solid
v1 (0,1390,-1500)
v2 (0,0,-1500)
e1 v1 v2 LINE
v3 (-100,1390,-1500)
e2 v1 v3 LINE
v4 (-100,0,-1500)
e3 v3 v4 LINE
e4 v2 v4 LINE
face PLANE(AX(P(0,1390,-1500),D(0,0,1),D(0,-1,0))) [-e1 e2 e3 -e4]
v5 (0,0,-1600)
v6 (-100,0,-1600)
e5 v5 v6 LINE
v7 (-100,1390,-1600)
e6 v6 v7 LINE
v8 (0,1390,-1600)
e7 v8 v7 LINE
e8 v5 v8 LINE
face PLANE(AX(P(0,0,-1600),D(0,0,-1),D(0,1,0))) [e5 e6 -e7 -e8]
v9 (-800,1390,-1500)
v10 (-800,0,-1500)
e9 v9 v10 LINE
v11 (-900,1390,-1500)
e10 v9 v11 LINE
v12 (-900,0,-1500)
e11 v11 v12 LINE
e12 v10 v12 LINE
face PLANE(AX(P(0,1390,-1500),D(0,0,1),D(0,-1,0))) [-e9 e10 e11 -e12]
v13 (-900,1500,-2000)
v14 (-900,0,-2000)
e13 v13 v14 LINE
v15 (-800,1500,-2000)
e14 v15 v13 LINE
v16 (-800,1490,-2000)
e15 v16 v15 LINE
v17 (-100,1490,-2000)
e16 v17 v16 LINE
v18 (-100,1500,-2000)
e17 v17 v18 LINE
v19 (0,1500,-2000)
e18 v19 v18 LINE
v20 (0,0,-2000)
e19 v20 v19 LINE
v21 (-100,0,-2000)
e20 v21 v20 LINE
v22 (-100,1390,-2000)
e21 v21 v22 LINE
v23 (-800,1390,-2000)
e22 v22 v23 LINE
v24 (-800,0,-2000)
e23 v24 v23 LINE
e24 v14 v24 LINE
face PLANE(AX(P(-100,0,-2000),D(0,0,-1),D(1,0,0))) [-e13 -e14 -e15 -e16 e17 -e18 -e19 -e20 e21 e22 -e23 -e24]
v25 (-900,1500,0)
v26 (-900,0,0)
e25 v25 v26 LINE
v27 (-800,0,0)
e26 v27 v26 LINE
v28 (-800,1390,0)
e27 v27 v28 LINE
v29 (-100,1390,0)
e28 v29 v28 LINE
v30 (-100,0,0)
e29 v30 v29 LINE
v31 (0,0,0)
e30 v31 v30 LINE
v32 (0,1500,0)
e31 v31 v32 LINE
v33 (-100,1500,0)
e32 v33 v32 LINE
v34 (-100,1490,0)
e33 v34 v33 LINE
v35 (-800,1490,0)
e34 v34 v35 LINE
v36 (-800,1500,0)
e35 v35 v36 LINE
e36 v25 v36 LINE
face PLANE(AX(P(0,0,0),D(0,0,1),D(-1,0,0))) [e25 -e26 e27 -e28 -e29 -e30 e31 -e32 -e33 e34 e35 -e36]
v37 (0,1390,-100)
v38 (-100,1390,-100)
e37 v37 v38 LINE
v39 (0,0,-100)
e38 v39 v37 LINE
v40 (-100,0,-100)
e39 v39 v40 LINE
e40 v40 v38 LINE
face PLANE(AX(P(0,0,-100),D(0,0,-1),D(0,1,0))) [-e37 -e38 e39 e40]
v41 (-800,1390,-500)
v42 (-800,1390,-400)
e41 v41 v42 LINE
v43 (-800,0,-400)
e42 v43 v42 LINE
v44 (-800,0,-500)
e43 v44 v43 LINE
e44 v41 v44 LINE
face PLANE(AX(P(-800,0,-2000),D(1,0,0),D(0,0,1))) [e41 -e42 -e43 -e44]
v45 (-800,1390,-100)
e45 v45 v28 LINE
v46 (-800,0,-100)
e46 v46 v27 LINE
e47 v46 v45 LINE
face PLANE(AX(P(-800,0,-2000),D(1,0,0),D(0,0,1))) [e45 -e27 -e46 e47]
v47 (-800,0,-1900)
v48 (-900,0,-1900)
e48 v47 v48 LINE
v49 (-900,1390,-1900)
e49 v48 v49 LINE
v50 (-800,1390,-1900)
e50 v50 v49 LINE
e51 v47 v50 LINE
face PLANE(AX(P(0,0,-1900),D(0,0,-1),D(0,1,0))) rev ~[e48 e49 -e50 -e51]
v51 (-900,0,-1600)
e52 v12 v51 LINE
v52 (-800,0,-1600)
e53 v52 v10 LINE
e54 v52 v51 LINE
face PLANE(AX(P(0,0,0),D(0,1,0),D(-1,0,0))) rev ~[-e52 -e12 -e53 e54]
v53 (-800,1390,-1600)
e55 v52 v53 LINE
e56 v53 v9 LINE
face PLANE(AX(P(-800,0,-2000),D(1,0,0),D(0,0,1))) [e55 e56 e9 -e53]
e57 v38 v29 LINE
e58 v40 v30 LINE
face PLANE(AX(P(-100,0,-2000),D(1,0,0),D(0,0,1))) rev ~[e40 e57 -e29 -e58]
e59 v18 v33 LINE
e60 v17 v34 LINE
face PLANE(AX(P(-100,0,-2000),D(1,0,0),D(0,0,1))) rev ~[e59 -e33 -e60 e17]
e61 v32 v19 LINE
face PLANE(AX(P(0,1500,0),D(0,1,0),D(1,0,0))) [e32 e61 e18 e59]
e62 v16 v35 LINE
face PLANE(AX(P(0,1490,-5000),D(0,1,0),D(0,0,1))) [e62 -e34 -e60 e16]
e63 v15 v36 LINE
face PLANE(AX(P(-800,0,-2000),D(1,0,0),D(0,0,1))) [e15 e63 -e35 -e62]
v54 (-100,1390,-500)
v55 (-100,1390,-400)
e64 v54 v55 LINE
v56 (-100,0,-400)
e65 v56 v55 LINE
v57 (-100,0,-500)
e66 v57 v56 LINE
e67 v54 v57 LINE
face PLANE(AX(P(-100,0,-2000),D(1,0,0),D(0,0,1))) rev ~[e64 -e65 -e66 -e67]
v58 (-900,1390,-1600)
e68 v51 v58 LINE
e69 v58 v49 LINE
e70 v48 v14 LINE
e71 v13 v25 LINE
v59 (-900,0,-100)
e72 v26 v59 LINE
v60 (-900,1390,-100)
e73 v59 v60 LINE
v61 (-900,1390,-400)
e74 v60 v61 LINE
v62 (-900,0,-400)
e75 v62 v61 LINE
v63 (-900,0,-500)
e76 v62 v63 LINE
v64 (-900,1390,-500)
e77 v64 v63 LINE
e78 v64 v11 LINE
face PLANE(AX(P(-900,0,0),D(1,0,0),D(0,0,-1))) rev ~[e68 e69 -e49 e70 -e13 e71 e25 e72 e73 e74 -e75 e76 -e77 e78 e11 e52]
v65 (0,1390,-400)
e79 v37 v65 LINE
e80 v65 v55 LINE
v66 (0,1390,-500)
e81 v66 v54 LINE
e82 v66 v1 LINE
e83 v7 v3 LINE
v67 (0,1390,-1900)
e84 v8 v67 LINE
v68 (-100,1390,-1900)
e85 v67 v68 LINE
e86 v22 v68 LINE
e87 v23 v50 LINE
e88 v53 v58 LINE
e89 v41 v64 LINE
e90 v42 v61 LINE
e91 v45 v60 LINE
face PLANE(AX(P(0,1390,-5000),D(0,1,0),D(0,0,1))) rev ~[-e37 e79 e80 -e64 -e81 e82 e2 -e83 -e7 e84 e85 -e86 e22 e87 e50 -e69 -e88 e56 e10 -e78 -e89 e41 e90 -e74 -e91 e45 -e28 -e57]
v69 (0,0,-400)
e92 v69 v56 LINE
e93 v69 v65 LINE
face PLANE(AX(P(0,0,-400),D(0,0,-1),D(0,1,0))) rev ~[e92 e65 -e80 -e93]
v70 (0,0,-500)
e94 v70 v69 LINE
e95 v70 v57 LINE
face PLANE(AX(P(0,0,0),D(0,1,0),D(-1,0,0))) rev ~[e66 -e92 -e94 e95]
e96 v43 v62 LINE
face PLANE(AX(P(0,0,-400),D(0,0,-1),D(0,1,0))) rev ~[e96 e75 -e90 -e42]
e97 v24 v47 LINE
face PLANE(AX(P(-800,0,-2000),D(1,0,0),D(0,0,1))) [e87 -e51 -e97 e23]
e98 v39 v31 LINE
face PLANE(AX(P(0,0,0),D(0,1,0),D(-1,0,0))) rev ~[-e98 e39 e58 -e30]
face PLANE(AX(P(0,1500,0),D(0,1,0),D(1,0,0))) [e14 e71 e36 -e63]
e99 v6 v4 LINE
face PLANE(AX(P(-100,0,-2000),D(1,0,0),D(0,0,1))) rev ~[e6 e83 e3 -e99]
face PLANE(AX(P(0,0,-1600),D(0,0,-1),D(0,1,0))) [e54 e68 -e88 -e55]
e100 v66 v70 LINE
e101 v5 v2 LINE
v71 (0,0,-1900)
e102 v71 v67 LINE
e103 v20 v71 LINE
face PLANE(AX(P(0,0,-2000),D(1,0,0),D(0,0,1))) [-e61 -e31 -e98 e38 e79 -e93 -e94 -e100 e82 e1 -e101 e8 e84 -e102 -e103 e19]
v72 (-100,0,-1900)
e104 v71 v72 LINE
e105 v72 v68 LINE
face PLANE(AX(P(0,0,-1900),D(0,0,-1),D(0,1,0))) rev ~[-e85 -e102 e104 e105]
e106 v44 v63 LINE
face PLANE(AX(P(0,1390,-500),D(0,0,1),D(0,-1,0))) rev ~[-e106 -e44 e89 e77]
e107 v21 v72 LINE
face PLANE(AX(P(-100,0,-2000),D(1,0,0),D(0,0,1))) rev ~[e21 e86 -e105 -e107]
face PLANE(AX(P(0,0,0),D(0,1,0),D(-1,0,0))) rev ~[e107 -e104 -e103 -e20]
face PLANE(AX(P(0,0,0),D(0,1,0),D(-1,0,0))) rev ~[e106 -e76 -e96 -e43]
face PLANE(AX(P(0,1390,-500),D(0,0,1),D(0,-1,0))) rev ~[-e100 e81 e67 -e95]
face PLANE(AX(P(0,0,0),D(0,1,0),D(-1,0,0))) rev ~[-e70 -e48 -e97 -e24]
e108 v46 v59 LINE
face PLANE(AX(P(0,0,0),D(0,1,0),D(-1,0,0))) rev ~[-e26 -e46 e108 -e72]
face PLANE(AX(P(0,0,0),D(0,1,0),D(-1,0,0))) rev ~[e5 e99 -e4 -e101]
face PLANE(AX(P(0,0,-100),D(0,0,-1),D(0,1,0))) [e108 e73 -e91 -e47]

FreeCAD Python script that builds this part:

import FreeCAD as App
import Part
import Sketcher

V = App.Vector
Q = App.Units.Quantity


def add_polygon(sketch, points):
    """Adds a closed chain of lines whose ends are joined by coincident constraints."""
    first, n = sketch.GeometryCount, len(points)
    for a, b in zip(points, points[1:] + points[:1]):
        sketch.addGeometry(Part.LineSegment(App.Vector(*a, 0), App.Vector(*b, 0)), False)
    for i in range(n):
        sketch.addConstraint(Sketcher.Constraint("Coincident", first + i, 2, first + (i + 1) % n, 1))

doc = App.newDocument("Part")
body = doc.addObject("PartDesign::Body", "Body")
body.AllowCompound = True

sketch1 = body.newObject("Sketcher::SketchObject", "Sketch")
sketch1.AttachmentSupport = (doc.getObject("XZ_Plane"), [""])
sketch1.MapMode = "FlatFace"
add_polygon(sketch1, [(-100, 0), (0, 0), (0, -2000), (-100, -2000)])
add_polygon(sketch1, [(-900, 0), (-800, 0), (-800, -2000), (-900, -2000)])
sketch1.addConstraint([
    Sketcher.Constraint("Horizontal", 0),
    Sketcher.Constraint("Vertical", 1),
    Sketcher.Constraint("Horizontal", 2),
    Sketcher.Constraint("Vertical", 3),
    Sketcher.Constraint("Horizontal", 4),
    Sketcher.Constraint("Vertical", 5),
    Sketcher.Constraint("Horizontal", 6),
    Sketcher.Constraint("Vertical", 7),
    Sketcher.Constraint("Coincident", 0, 2, -1, 1),
    Sketcher.Constraint("PointOnObject", 4, 2, -1),
    Sketcher.Constraint("Horizontal", 2, 2, 5, 2),
    Sketcher.Constraint("Equal", 2, 4),
    Sketcher.Constraint("DistanceX", 0, 1, 0, 2, Q("100 mm")),
    Sketcher.Constraint("DistanceY", 1, 2, 1, 1, Q("2000 mm")),
    Sketcher.Constraint("DistanceX", 6, 2, -1, 1, Q("900 mm")),
])
pad1 = body.newObject("PartDesign::Pad", "Pad")
pad1.Profile = sketch1
pad1.Length = 1790
pad1.Reversed = True

sketch2 = body.newObject("Sketcher::SketchObject", "Sketch001")
sketch2.AttachmentSupport = (doc.getObject("YZ_Plane"), [""])
sketch2.MapMode = "FlatFace"
add_polygon(sketch2, [(1490, 0), (1390, 0), (1390, -5000), (1490, -5000)])
sketch2.addConstraint([
    Sketcher.Constraint("Horizontal", 0),
    Sketcher.Constraint("Vertical", 1),
    Sketcher.Constraint("Horizontal", 2),
    Sketcher.Constraint("Vertical", 3),
    Sketcher.Constraint("PointOnObject", 0, 2, -1),
    Sketcher.Constraint("DistanceX", 0, 2, 0, 1, Q("100 mm")),
    Sketcher.Constraint("DistanceY", 1, 2, 1, 1, Q("5000 mm")),
    Sketcher.Constraint("DistanceX", -1, 1, 0, 2, Q("1390 mm")),
])
pad2 = body.newObject("PartDesign::Pad", "Pad001")
pad2.Profile = sketch2
pad2.Length = 900
pad2.Reversed = True

sketch3 = body.newObject("Sketcher::SketchObject", "Sketch002")
sketch3.AttachmentSupport = (doc.getObject("XZ_Plane"), [""])
sketch3.MapMode = "FlatFace"
sketch3.AttachmentOffset = App.Placement(V(0, 0, -1790), App.Rotation())
add_polygon(sketch3, [(0, -2000), (-900, -2000), (-900, 0), (0, 0)])
sketch3.addConstraint([
    Sketcher.Constraint("Horizontal", 0),
    Sketcher.Constraint("Vertical", 1),
    Sketcher.Constraint("Horizontal", 2),
    Sketcher.Constraint("Vertical", 3),
    Sketcher.Constraint("Coincident", 2, 2, -1, 1),
    Sketcher.Constraint("DistanceX", 0, 2, 0, 1, Q("900 mm")),
    Sketcher.Constraint("DistanceY", 1, 1, 1, 2, Q("2000 mm")),
])
pocket1 = body.newObject("PartDesign::Pocket", "Pocket")
pocket1.Profile = sketch3
pocket1.Length = 290
pocket1.Reversed = True

sketch4 = body.newObject("Sketcher::SketchObject", "Sketch003")
sketch4.AttachmentSupport = (doc.getObject("XZ_Plane"), [""])
sketch4.MapMode = "FlatFace"
sketch4.AttachmentOffset = App.Placement(V(0, 0, -1490), App.Rotation())
add_polygon(sketch4, [(-900, -5000), (-900, -2000), (0, -2000), (0, -5000)])
sketch4.addConstraint([
    Sketcher.Constraint("Vertical", 0),
    Sketcher.Constraint("Horizontal", 1),
    Sketcher.Constraint("Vertical", 2),
    Sketcher.Constraint("Horizontal", 3),
    Sketcher.Constraint("PointOnObject", 1, 2, -2),
    Sketcher.Constraint("DistanceX", 1, 1, 1, 2, Q("900 mm")),
    Sketcher.Constraint("DistanceY", 0, 1, 0, 2, Q("3000 mm")),
    Sketcher.Constraint("DistanceY", 0, 2, -1, 1, Q("2000 mm")),
])
pocket2 = body.newObject("PartDesign::Pocket", "Pocket001")
pocket2.Profile = sketch4
pocket2.Length = 1500
pocket2.Reversed = True

sketch5 = body.newObject("Sketcher::SketchObject", "Sketch004")
sketch5.AttachmentSupport = (doc.getObject("YZ_Plane"), [""])
sketch5.MapMode = "FlatFace"
add_polygon(sketch5, [(1390, -100), (0, -100), (0, -400), (1390, -400)])
add_polygon(sketch5, [(1390, -500), (0, -500), (0, -1500), (1390, -1500)])
add_polygon(sketch5, [(1390, -1600), (0, -1600), (0, -1900), (1390, -1900)])
sketch5.addConstraint([
    Sketcher.Constraint("Horizontal", 0),
    Sketcher.Constraint("Vertical", 1),
    Sketcher.Constraint("Horizontal", 2),
    Sketcher.Constraint("Vertical", 3),
    Sketcher.Constraint("Horizontal", 4),
    Sketcher.Constraint("Vertical", 5),
    Sketcher.Constraint("Horizontal", 6),
    Sketcher.Constraint("Vertical", 7),
    Sketcher.Constraint("Horizontal", 8),
    Sketcher.Constraint("Vertical", 9),
    Sketcher.Constraint("Horizontal", 10),
    Sketcher.Constraint("Vertical", 11),
    Sketcher.Constraint("PointOnObject", 0, 2, -2),
    Sketcher.Constraint("PointOnObject", 4, 2, -2),
    Sketcher.Constraint("PointOnObject", 8, 2, -2),
    Sketcher.Constraint("Vertical", 3, 2, 6, 2),
    Sketcher.Constraint("Vertical", 7, 2, 10, 2),
    Sketcher.Constraint("Equal", 3, 9),
    Sketcher.Constraint("DistanceY", 0, 2, -1, 1, Q("100 mm")),
    Sketcher.Constraint("DistanceY", 4, 2, -1, 1, Q("500 mm")),
    Sketcher.Constraint("DistanceY", 4, 2, 1, 2, Q("100 mm")),
    Sketcher.Constraint("DistanceY", 8, 2, 5, 2, Q("100 mm")),
    Sketcher.Constraint("DistanceX", 0, 2, 0, 1, Q("1390 mm")),
    Sketcher.Constraint("DistanceY", 5, 2, 5, 1, Q("1000 mm")),
])
pocket3 = body.newObject("PartDesign::Pocket", "Pocket002")
pocket3.Profile = sketch5
pocket3.Length = 1500

doc.recompute()
